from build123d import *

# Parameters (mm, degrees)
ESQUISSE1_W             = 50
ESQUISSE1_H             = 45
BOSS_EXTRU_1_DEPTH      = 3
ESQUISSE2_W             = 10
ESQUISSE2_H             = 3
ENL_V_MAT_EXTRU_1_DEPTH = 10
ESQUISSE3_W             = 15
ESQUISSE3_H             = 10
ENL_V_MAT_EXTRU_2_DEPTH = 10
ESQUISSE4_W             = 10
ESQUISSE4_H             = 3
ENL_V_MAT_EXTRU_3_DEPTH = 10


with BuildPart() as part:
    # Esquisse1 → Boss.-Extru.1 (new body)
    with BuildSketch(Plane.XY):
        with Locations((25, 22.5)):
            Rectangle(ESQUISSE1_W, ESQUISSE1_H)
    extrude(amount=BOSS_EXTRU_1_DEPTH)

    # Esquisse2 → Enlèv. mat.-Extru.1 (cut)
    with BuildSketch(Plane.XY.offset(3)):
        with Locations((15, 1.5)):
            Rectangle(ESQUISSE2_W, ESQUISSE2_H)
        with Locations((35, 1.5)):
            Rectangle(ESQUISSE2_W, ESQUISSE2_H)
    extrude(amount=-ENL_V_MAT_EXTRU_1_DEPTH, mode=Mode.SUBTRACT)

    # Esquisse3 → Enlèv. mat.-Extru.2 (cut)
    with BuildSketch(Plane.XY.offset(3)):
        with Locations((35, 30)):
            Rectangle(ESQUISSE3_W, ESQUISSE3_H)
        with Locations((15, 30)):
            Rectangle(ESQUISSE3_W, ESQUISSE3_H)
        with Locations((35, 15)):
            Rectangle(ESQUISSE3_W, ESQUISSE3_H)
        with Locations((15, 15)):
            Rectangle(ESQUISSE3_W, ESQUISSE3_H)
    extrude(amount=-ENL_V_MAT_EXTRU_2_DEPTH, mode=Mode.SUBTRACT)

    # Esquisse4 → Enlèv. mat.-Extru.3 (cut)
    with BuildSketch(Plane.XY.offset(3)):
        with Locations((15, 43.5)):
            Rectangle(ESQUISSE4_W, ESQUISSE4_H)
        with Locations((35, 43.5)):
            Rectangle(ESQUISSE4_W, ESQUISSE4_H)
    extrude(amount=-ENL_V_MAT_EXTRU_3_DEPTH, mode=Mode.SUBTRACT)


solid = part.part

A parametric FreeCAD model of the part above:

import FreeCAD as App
import Part
import Sketcher


def add_polygon(sketch, points):
    """Adds a closed chain of lines whose ends are joined by coincident constraints."""
    first, n = sketch.GeometryCount, len(points)
    for a, b in zip(points, points[1:] + points[:1]):
        sketch.addGeometry(Part.LineSegment(App.Vector(*a, 0), App.Vector(*b, 0)), False)
    for i in range(n):
        sketch.addConstraint(Sketcher.Constraint("Coincident", first + i, 2, first + (i + 1) % n, 1))

doc = App.newDocument("Part")
body = doc.addObject("PartDesign::Body", "Body")

sketch1 = body.newObject("Sketcher::SketchObject", "Sketch")
sketch1.AttachmentSupport = (doc.getObject("XY_Plane"), [""])
sketch1.MapMode = "FlatFace"
add_polygon(sketch1, [(0, 45), (0, 0), (50, 0), (50, 45)])
sketch1.addConstraint([
    Sketcher.Constraint("Vertical", 0),
    Sketcher.Constraint("Horizontal", 1),
    Sketcher.Constraint("Vertical", 2),
    Sketcher.Constraint("Horizontal", 3),
    Sketcher.Constraint("Coincident", 0, 2, -1, 1),
    Sketcher.Constraint("DistanceX", 1, 1, 1, 2, 50.0),
    Sketcher.Constraint("DistanceY", 0, 2, 0, 1, 45.0),
])
pad1 = body.newObject("PartDesign::Pad", "Pad")
pad1.Profile = sketch1
pad1.Length = 3

sketch2 = body.newObject("Sketcher::SketchObject", "Sketch001")
sketch2.AttachmentSupport = (doc.getObject("XY_Plane"), [""])
sketch2.MapMode = "FlatFace"
sketch2.AttachmentOffset = App.Placement(App.Vector(0, 0, 3), App.Rotation())
add_polygon(sketch2, [(10, 3), (10, 0), (20, 0), (20, 3)])
add_polygon(sketch2, [(30, 3), (30, 0), (40, 0), (40, 3)])
sketch2.addConstraint([
    Sketcher.Constraint("Vertical", 0),
    Sketcher.Constraint("Horizontal", 1),
    Sketcher.Constraint("Vertical", 2),
    Sketcher.Constraint("Horizontal", 3),
    Sketcher.Constraint("Vertical", 4),
    Sketcher.Constraint("Horizontal", 5),
    Sketcher.Constraint("Vertical", 6),
    Sketcher.Constraint("Horizontal", 7),
    Sketcher.Constraint("PointOnObject", 0, 2, -1),
    Sketcher.Constraint("PointOnObject", 4, 2, -1),
    Sketcher.Constraint("Horizontal", 3, 2, 6, 2),
    Sketcher.Constraint("Equal", 3, 5),
    Sketcher.Constraint("DistanceX", 1, 1, 1, 2, 10.0),
    Sketcher.Constraint("DistanceY", 0, 2, 0, 1, 3.0),
    Sketcher.Constraint("DistanceX", -1, 1, 0, 2, 10.0),
    Sketcher.Constraint("DistanceX", -1, 1, 4, 2, 30.0),
])
pocket1 = body.newObject("PartDesign::Pocket", "Pocket")
pocket1.Profile = sketch2
pocket1.Length = 10

sketch3 = body.newObject("Sketcher::SketchObject", "Sketch002")
sketch3.AttachmentSupport = (doc.getObject("XY_Plane"), [""])
sketch3.MapMode = "FlatFace"
sketch3.AttachmentOffset = App.Placement(App.Vector(0, 0, 3), App.Rotation())
add_polygon(sketch3, [(28, 35), (28, 25), (42, 25), (42, 35)])
add_polygon(sketch3, [(8, 35), (8, 25), (22, 25), (22, 35)])
add_polygon(sketch3, [(28, 20), (28, 10), (42, 10), (42, 20)])
add_polygon(sketch3, [(8, 20), (8, 10), (22, 10), (22, 20)])
sketch3.addConstraint([
    Sketcher.Constraint("Vertical", 0),
    Sketcher.Constraint("Horizontal", 1),
    Sketcher.Constraint("Vertical", 2),
    Sketcher.Constraint("Horizontal", 3),
    Sketcher.Constraint("Vertical", 4),
    Sketcher.Constraint("Horizontal", 5),
    Sketcher.Constraint("Vertical", 6),
    Sketcher.Constraint("Horizontal", 7),
    Sketcher.Constraint("Vertical", 8),
    Sketcher.Constraint("Horizontal", 9),
    Sketcher.Constraint("Vertical", 10),
    Sketcher.Constraint("Horizontal", 11),
    Sketcher.Constraint("Vertical", 12),
    Sketcher.Constraint("Horizontal", 13),
    Sketcher.Constraint("Vertical", 14),
    Sketcher.Constraint("Horizontal", 15),
    Sketcher.Constraint("Horizontal", 1, 2, 4, 2),
    Sketcher.Constraint("Horizontal", 3, 2, 6, 2),
    Sketcher.Constraint("Horizontal", 9, 2, 12, 2),
    Sketcher.Constraint("Horizontal", 11, 2, 14, 2),
    Sketcher.Constraint("Vertical", 3, 2, 8, 2),
    Sketcher.Constraint("Vertical", 2, 2, 9, 2),
    Sketcher.Constraint("Vertical", 7, 2, 12, 2),
    Sketcher.Constraint("Vertical", 6, 2, 13, 2),
    Sketcher.Constraint("Equal", 3, 5),
    Sketcher.Constraint("Equal", 6, 8),
    Sketcher.Constraint("DistanceX", 1, 1, 1, 2, 15.0),
    Sketcher.Constraint("DistanceY", 0, 2, 0, 1, 10.0),
    Sketcher.Constraint("DistanceY", -1, 1, 0, 2, 25.0),
    Sketcher.Constraint("DistanceY", -1, 1, 8, 2, 10.0),
    Sketcher.Constraint("DistanceX", 4, 2, 0, 2, 20.0),
    Sketcher.Constraint("DistanceX", -1, 1, 0, 2, 27.5),
])
pocket2 = body.newObject("PartDesign::Pocket", "Pocket001")
pocket2.Profile = sketch3
pocket2.Length = 10

sketch4 = body.newObject("Sketcher::SketchObject", "Sketch003")
sketch4.AttachmentSupport = (doc.getObject("XY_Plane"), [""])
sketch4.MapMode = "FlatFace"
sketch4.AttachmentOffset = App.Placement(App.Vector(0, 0, 3), App.Rotation())
add_polygon(sketch4, [(10, 45), (10, 42), (20, 42), (20, 45)])
add_polygon(sketch4, [(30, 45), (30, 42), (40, 42), (40, 45)])
sketch4.addConstraint([
    Sketcher.Constraint("Vertical", 0),
    Sketcher.Constraint("Horizontal", 1),
    Sketcher.Constraint("Vertical", 2),
    Sketcher.Constraint("Horizontal", 3),
    Sketcher.Constraint("Vertical", 4),
    Sketcher.Constraint("Horizontal", 5),
    Sketcher.Constraint("Vertical", 6),
    Sketcher.Constraint("Horizontal", 7),
    Sketcher.Constraint("Horizontal", 1, 2, 4, 2),
    Sketcher.Constraint("Horizontal", 3, 2, 6, 2),
    Sketcher.Constraint("Equal", 3, 5),
    Sketcher.Constraint("DistanceX", 1, 1, 1, 2, 10.0),
    Sketcher.Constraint("DistanceY", 0, 2, 0, 1, 3.0),
    Sketcher.Constraint("DistanceX", -1, 1, 0, 2, 10.0),
    Sketcher.Constraint("DistanceY", -1, 1, 0, 2, 42.0),
    Sketcher.Constraint("DistanceX", -1, 1, 4, 2, 30.0),
])
pocket3 = body.newObject("PartDesign::Pocket", "Pocket002")
pocket3.Profile = sketch4
pocket3.Length = 10

doc.recompute()
